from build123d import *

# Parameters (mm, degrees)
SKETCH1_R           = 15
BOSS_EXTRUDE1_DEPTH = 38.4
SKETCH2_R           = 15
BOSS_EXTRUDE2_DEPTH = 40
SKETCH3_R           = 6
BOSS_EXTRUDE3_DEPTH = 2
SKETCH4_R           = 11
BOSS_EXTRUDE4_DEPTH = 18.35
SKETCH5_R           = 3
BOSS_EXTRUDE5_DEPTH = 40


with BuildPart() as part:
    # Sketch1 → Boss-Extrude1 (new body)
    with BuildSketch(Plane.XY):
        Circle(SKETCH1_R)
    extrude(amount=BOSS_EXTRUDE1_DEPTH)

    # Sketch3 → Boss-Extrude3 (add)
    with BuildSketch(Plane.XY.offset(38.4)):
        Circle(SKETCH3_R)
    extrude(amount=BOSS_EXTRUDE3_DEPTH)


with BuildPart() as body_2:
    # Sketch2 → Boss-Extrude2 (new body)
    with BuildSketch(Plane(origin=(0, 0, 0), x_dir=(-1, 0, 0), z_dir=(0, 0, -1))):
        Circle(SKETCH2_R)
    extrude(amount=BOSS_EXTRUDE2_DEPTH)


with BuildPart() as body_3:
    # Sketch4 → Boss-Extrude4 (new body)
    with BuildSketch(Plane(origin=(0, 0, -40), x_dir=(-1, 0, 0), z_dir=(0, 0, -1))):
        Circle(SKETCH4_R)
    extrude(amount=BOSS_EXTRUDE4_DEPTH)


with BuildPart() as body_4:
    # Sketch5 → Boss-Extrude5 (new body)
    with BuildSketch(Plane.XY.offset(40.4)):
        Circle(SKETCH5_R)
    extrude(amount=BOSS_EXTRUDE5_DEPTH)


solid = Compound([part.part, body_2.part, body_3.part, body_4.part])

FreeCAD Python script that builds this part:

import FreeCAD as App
import Part
import Sketcher
from FreeCAD import Vector

doc = App.newDocument("Part")
body = doc.addObject("PartDesign::Body", "Body")

# Sketch on XY plane
sketch1 = body.newObject("Sketcher::SketchObject", "Sketch")
sketch1.AttachmentSupport = (doc.getObject("XY_Plane"), [""])
sketch1.MapMode = "FlatFace"
sketch1.addGeometry(Part.Circle(Vector(0, 0, 0), Vector(0, 0, 1), 15), False)
sketch1.addConstraint(Sketcher.Constraint("Coincident", 0, 3, -1, 1))
sketch1.addConstraint(Sketcher.Constraint("Diameter", 0, 30.0))
pad1 = body.newObject("PartDesign::Pad", "Pad")
pad1.Profile = sketch1
pad1.Length = 38.4

# Sketch on XY plane
sketch2 = body.newObject("Sketcher::SketchObject", "Sketch001")
sketch2.AttachmentSupport = (doc.getObject("XY_Plane"), [""])
sketch2.MapMode = "FlatFace"
sketch2.AttachmentOffset = App.Placement(Vector(0, 0, 38.4), App.Rotation())
sketch2.addGeometry(Part.Circle(Vector(0, 0, 0), Vector(0, 0, 1), 6), False)
sketch2.addConstraint(Sketcher.Constraint("Coincident", 0, 3, -1, 1))
sketch2.addConstraint(Sketcher.Constraint("Diameter", 0, 12.0))
pad2 = body.newObject("PartDesign::Pad", "Pad001")
pad2.Profile = sketch2
pad2.Length = 2
body2 = doc.addObject("PartDesign::Body", "Body001")

# Sketch on XY plane
sketch3 = body2.newObject("Sketcher::SketchObject", "Sketch002")
sketch3.AttachmentSupport = (doc.getObject("XY_Plane001"), [""])
sketch3.MapMode = "FlatFace"
sketch3.addGeometry(Part.Circle(Vector(0, 0, 0), Vector(0, 0, 1), 15), False)
sketch3.addConstraint(Sketcher.Constraint("Coincident", 0, 3, -1, 1))
sketch3.addConstraint(Sketcher.Constraint("Diameter", 0, 30.0))
pad3 = body2.newObject("PartDesign::Pad", "Pad002")
pad3.Profile = sketch3
pad3.Length = 40
pad3.Reversed = True
body3 = doc.addObject("PartDesign::Body", "Body002")

# Sketch on XY plane
sketch4 = body3.newObject("Sketcher::SketchObject", "Sketch003")
sketch4.AttachmentSupport = (doc.getObject("XY_Plane002"), [""])
sketch4.MapMode = "FlatFace"
sketch4.AttachmentOffset = App.Placement(Vector(0, 0, -40), App.Rotation())
sketch4.addGeometry(Part.Circle(Vector(0, 0, 0), Vector(0, 0, 1), 11), False)
sketch4.addConstraint(Sketcher.Constraint("Coincident", 0, 3, -1, 1))
sketch4.addConstraint(Sketcher.Constraint("Diameter", 0, 22.0))
pad4 = body3.newObject("PartDesign::Pad", "Pad003")
pad4.Profile = sketch4
pad4.Length = 18.35
pad4.Reversed = True
body4 = doc.addObject("PartDesign::Body", "Body003")

# Sketch on XY plane
sketch5 = body4.newObject("Sketcher::SketchObject", "Sketch004")
sketch5.AttachmentSupport = (doc.getObject("XY_Plane003"), [""])
sketch5.MapMode = "FlatFace"
sketch5.AttachmentOffset = App.Placement(Vector(0, 0, 40.4), App.Rotation())
sketch5.addGeometry(Part.Circle(Vector(0, 0, 0), Vector(0, 0, 1), 3), False)
sketch5.addConstraint(Sketcher.Constraint("Coincident", 0, 3, -1, 1))
sketch5.addConstraint(Sketcher.Constraint("Diameter", 0, 6.0))
pad5 = body4.newObject("PartDesign::Pad", "Pad004")
pad5.Profile = sketch5
pad5.Length = 40

doc.recompute()
